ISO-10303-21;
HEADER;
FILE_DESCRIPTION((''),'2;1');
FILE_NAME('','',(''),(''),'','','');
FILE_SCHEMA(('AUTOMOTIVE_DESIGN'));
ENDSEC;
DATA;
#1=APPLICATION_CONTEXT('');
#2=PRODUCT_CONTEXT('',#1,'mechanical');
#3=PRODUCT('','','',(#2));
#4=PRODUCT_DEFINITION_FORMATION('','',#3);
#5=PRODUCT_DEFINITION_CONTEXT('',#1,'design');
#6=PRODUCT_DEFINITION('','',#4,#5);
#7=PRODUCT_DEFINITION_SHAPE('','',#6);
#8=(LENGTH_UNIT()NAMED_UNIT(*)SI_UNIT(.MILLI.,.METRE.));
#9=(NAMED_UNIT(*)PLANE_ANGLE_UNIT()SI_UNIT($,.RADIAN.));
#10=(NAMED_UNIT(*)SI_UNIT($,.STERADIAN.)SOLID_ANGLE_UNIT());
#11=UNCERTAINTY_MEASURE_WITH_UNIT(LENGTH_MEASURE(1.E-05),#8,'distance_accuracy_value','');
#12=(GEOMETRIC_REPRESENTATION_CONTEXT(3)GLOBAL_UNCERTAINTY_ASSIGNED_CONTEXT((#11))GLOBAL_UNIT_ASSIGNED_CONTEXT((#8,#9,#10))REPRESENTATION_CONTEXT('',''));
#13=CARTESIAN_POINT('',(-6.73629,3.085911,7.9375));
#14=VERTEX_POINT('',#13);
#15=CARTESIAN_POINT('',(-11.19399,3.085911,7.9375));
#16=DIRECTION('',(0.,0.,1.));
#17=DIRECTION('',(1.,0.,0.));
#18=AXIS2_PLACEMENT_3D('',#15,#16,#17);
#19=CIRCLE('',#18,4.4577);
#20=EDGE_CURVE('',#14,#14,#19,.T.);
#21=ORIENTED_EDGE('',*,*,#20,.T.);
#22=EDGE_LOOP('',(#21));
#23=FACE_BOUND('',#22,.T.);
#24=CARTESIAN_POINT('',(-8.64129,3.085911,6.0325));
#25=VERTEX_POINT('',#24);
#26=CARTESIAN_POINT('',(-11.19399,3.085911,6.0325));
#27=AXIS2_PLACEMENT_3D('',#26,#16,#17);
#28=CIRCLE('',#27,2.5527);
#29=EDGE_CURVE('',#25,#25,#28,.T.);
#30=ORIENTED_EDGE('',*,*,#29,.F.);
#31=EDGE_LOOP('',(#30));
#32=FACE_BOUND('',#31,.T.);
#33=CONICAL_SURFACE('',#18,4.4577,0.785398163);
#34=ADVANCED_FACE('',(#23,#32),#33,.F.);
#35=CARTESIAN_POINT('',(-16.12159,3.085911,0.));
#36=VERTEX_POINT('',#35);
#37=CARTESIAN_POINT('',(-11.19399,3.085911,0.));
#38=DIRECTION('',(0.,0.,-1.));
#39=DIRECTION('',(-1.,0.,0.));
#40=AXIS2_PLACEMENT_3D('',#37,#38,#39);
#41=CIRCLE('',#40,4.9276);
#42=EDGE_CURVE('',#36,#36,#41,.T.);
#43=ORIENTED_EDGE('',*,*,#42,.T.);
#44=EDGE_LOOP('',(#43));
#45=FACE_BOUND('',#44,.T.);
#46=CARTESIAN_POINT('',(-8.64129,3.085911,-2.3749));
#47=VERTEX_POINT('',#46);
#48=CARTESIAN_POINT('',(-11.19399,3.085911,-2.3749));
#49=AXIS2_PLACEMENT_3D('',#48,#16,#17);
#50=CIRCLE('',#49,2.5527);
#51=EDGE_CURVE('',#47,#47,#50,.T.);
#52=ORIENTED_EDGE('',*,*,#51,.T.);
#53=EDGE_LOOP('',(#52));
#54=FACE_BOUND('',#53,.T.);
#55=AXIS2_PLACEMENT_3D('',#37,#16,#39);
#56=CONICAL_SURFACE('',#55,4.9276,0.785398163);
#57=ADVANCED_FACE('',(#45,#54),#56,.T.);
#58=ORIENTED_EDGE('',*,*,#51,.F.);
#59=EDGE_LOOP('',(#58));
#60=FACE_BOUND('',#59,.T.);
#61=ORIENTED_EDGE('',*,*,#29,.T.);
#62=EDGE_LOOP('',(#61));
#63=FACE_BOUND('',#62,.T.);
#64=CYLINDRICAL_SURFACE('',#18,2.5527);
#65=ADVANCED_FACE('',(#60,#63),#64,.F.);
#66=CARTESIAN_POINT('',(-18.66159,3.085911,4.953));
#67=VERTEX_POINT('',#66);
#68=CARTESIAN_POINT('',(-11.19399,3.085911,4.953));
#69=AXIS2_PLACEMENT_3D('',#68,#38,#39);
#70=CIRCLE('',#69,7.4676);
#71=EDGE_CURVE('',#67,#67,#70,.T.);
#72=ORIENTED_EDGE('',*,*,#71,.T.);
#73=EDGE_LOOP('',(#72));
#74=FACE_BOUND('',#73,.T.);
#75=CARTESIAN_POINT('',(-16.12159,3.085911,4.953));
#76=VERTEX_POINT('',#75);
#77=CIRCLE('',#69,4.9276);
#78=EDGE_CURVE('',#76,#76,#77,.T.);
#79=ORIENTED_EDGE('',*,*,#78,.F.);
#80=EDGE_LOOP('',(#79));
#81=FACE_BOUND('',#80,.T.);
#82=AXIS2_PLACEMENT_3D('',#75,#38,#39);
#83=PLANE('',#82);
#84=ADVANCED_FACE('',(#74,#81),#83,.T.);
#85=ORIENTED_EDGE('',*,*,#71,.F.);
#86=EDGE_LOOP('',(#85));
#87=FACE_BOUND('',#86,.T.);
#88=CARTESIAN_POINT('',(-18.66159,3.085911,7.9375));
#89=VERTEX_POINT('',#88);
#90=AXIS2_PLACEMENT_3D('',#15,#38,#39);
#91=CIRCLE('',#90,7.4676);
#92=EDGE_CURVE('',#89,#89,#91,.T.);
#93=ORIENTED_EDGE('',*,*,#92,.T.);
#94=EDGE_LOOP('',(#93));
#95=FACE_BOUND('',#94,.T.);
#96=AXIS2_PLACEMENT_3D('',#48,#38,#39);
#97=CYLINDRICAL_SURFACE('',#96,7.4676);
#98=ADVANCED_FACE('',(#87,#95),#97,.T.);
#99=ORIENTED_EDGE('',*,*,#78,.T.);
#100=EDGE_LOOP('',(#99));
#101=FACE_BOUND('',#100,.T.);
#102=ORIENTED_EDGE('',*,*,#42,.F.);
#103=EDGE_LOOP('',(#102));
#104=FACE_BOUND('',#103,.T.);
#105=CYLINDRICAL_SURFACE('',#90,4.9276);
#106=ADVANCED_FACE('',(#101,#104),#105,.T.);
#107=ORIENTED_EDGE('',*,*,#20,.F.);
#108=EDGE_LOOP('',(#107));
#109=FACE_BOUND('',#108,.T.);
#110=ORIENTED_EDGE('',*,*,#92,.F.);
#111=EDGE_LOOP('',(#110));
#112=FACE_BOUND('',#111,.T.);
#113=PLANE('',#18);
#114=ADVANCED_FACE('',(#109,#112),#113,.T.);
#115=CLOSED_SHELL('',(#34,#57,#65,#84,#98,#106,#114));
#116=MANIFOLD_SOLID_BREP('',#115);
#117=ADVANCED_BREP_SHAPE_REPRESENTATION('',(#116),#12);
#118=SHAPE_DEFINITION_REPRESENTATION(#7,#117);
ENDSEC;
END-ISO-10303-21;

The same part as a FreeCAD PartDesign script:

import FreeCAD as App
import Part
import Sketcher
from FreeCAD import Vector
Q = App.Units.Quantity

doc = App.newDocument("Part")
params = doc.addObject("Spreadsheet::Sheet", "Params")
for row, (alias, value) in enumerate([
    ("sketch1_diameter", "0.388 in"),
    ("pad1_length", "0.3125 in"),
    ("sketch2_diameter", "0.388 in"),
    ("pad2_length", "0.125 in"),
    ("pad2_taper", "-45 deg"),
    ("sketch3_diameter", "0.201 in"),
    ("hole_diameter", "0.201 in"),
    ("hole_depth", "0.65 in"),
    ("hole_csink_diameter", "0.351 in"),
    ("sketch4_width", "0.1 in"),
    ("revolution_angle", "360 deg"),
], start=1):
    params.set(f"A{row}", alias)
    params.set(f"B{row}", "=" + value)
    params.setAlias(f"B{row}", alias)

body = doc.addObject("PartDesign::Body", "Body")

# Sketch on XY plane
sketch1 = body.newObject("Sketcher::SketchObject", "Sketch")
sketch1.AttachmentSupport = (doc.getObject("XY_Plane"), [""])
sketch1.MapMode = "FlatFace"
sketch1.addGeometry(Part.Circle(Vector(-11.2, 3.1, 0), Vector(0, 0, 1), 4.9), False)
sketch1.addConstraint([
    Sketcher.Constraint("Diameter", 0, Q("0.388 in")),
    Sketcher.Constraint("DistanceX", 0, 3, -1, 1, 11.19399),
    Sketcher.Constraint("DistanceY", -1, 1, 0, 3, 3.085911),
])
sketch1.setExpression("Constraints[0]", "Params.sketch1_diameter")
pad1 = body.newObject("PartDesign::Pad", "Pad")
pad1.Profile = sketch1
pad1.setExpression("Length", "Params.pad1_length")

# Sketch on XY plane
sketch2 = body.newObject("Sketcher::SketchObject", "Sketch001")
sketch2.AttachmentSupport = (doc.getObject("XY_Plane"), [""])
sketch2.MapMode = "FlatFace"
sketch2.addGeometry(Part.Circle(Vector(-11.2, 3.1, 0), Vector(0, 0, 1), 4.9), False)
sketch2.addConstraint([
    Sketcher.Constraint("Diameter", 0, Q("0.388 in")),
    Sketcher.Constraint("DistanceX", 0, 3, -1, 1, 11.19399),
    Sketcher.Constraint("DistanceY", -1, 1, 0, 3, 3.085911),
])
sketch2.setExpression("Constraints[0]", "Params.sketch2_diameter")
pad2 = body.newObject("PartDesign::Pad", "Pad001")
pad2.Profile = sketch2
pad2.setExpression("Length", "Params.pad2_length")
pad2.Reversed = True
pad2.setExpression("TaperAngle", "Params.pad2_taper")

# Sketch on XY plane
sketch3 = body.newObject("Sketcher::SketchObject", "Sketch002")
sketch3.AttachmentSupport = (doc.getObject("XY_Plane"), [""])
sketch3.MapMode = "FlatFace"
sketch3.AttachmentOffset = App.Placement(Vector(0, 0, 0.3125 * 25.4), App.Rotation())
sketch3.addGeometry(Part.Circle(Vector(-11.2, 3.1, 0), Vector(0, 0, 1), 2.6), False)
sketch3.addConstraint([
    Sketcher.Constraint("Diameter", 0, Q("0.201 in")),
    Sketcher.Constraint("DistanceX", 0, 3, -1, 1, 11.19399),
    Sketcher.Constraint("DistanceY", -1, 1, 0, 3, 3.085911),
])
sketch3.setExpression("Constraints[0]", "Params.sketch3_diameter")
doc.recompute()
hole = body.newObject("PartDesign::Hole", "Hole")
hole.Profile = sketch3
hole.ThreadType = "None"
hole.setExpression("Diameter", "Params.hole_diameter")
hole.DepthType = "Dimension"
hole.setExpression("Depth", "Params.hole_depth")
hole.DrillPoint = "Angled"
hole.DrillPointAngle = 118
hole.HoleCutType = "Countersink"
hole.setExpression("HoleCutDiameter", "Params.hole_csink_diameter")
hole.HoleCutCountersinkAngle = 90

# Sketch on XZ plane
sketch4 = body.newObject("Sketcher::SketchObject", "Sketch003")
sketch4.AttachmentSupport = (doc.getObject("XZ_Plane"), [""])
sketch4.MapMode = "FlatFace"
sketch4.AttachmentOffset = App.Placement(Vector(0, 0, -3.085911), App.Rotation())
sketch4.addGeometry([
    Part.LineSegment(Vector(-18.7, 5, 0), Vector(-18.7, 7.9, 0)),
    Part.LineSegment(Vector(-18.7, 7.9, 0), Vector(-16.1, 7.9, 0)),
    Part.LineSegment(Vector(-16.1, 7.9, 0), Vector(-16.1, 5, 0)),
    Part.LineSegment(Vector(-16.1, 5, 0), Vector(-18.7, 5, 0)),
], False)
sketch4.addGeometry(Part.LineSegment(Vector(-11.2, 5, 0), Vector(-11.2, 7.9, 0)), True)  # axis
sketch4.addConstraint([
    Sketcher.Constraint("Coincident", 0, 2, 1, 1),
    Sketcher.Constraint("Coincident", 1, 2, 2, 1),
    Sketcher.Constraint("Coincident", 2, 2, 3, 1),
    Sketcher.Constraint("Coincident", 3, 2, 0, 1),
    Sketcher.Constraint("Vertical", 0),
    Sketcher.Constraint("Horizontal", 1),
    Sketcher.Constraint("Vertical", 2),
    Sketcher.Constraint("Horizontal", 3),
    Sketcher.Constraint("Vertical", 4),
    Sketcher.Constraint("Horizontal", 3, 2, 4, 1),
    Sketcher.Constraint("Horizontal", 1, 2, 4, 2),
    Sketcher.Constraint("DistanceX", 1, 1, 1, 2, Q("0.1 in")),
    Sketcher.Constraint("DistanceY", 0, 1, 0, 2, Q("0.1175 in")),
    Sketcher.Constraint("DistanceY", -1, 1, 0, 2, Q("0.3125 in")),
    Sketcher.Constraint("DistanceX", 2, 2, 4, 1, Q("0.194 in")),
    Sketcher.Constraint("DistanceX", 0, 2, -1, 1, 18.66159),
])
sketch4.setExpression("Constraints[11]", "Params.sketch4_width")
revolution = body.newObject("PartDesign::Revolution", "Revolution")
revolution.Profile = sketch4
revolution.ReferenceAxis = (sketch4, ["Axis0"])
revolution.setExpression("Angle", "Params.revolution_angle")

doc.recompute()
